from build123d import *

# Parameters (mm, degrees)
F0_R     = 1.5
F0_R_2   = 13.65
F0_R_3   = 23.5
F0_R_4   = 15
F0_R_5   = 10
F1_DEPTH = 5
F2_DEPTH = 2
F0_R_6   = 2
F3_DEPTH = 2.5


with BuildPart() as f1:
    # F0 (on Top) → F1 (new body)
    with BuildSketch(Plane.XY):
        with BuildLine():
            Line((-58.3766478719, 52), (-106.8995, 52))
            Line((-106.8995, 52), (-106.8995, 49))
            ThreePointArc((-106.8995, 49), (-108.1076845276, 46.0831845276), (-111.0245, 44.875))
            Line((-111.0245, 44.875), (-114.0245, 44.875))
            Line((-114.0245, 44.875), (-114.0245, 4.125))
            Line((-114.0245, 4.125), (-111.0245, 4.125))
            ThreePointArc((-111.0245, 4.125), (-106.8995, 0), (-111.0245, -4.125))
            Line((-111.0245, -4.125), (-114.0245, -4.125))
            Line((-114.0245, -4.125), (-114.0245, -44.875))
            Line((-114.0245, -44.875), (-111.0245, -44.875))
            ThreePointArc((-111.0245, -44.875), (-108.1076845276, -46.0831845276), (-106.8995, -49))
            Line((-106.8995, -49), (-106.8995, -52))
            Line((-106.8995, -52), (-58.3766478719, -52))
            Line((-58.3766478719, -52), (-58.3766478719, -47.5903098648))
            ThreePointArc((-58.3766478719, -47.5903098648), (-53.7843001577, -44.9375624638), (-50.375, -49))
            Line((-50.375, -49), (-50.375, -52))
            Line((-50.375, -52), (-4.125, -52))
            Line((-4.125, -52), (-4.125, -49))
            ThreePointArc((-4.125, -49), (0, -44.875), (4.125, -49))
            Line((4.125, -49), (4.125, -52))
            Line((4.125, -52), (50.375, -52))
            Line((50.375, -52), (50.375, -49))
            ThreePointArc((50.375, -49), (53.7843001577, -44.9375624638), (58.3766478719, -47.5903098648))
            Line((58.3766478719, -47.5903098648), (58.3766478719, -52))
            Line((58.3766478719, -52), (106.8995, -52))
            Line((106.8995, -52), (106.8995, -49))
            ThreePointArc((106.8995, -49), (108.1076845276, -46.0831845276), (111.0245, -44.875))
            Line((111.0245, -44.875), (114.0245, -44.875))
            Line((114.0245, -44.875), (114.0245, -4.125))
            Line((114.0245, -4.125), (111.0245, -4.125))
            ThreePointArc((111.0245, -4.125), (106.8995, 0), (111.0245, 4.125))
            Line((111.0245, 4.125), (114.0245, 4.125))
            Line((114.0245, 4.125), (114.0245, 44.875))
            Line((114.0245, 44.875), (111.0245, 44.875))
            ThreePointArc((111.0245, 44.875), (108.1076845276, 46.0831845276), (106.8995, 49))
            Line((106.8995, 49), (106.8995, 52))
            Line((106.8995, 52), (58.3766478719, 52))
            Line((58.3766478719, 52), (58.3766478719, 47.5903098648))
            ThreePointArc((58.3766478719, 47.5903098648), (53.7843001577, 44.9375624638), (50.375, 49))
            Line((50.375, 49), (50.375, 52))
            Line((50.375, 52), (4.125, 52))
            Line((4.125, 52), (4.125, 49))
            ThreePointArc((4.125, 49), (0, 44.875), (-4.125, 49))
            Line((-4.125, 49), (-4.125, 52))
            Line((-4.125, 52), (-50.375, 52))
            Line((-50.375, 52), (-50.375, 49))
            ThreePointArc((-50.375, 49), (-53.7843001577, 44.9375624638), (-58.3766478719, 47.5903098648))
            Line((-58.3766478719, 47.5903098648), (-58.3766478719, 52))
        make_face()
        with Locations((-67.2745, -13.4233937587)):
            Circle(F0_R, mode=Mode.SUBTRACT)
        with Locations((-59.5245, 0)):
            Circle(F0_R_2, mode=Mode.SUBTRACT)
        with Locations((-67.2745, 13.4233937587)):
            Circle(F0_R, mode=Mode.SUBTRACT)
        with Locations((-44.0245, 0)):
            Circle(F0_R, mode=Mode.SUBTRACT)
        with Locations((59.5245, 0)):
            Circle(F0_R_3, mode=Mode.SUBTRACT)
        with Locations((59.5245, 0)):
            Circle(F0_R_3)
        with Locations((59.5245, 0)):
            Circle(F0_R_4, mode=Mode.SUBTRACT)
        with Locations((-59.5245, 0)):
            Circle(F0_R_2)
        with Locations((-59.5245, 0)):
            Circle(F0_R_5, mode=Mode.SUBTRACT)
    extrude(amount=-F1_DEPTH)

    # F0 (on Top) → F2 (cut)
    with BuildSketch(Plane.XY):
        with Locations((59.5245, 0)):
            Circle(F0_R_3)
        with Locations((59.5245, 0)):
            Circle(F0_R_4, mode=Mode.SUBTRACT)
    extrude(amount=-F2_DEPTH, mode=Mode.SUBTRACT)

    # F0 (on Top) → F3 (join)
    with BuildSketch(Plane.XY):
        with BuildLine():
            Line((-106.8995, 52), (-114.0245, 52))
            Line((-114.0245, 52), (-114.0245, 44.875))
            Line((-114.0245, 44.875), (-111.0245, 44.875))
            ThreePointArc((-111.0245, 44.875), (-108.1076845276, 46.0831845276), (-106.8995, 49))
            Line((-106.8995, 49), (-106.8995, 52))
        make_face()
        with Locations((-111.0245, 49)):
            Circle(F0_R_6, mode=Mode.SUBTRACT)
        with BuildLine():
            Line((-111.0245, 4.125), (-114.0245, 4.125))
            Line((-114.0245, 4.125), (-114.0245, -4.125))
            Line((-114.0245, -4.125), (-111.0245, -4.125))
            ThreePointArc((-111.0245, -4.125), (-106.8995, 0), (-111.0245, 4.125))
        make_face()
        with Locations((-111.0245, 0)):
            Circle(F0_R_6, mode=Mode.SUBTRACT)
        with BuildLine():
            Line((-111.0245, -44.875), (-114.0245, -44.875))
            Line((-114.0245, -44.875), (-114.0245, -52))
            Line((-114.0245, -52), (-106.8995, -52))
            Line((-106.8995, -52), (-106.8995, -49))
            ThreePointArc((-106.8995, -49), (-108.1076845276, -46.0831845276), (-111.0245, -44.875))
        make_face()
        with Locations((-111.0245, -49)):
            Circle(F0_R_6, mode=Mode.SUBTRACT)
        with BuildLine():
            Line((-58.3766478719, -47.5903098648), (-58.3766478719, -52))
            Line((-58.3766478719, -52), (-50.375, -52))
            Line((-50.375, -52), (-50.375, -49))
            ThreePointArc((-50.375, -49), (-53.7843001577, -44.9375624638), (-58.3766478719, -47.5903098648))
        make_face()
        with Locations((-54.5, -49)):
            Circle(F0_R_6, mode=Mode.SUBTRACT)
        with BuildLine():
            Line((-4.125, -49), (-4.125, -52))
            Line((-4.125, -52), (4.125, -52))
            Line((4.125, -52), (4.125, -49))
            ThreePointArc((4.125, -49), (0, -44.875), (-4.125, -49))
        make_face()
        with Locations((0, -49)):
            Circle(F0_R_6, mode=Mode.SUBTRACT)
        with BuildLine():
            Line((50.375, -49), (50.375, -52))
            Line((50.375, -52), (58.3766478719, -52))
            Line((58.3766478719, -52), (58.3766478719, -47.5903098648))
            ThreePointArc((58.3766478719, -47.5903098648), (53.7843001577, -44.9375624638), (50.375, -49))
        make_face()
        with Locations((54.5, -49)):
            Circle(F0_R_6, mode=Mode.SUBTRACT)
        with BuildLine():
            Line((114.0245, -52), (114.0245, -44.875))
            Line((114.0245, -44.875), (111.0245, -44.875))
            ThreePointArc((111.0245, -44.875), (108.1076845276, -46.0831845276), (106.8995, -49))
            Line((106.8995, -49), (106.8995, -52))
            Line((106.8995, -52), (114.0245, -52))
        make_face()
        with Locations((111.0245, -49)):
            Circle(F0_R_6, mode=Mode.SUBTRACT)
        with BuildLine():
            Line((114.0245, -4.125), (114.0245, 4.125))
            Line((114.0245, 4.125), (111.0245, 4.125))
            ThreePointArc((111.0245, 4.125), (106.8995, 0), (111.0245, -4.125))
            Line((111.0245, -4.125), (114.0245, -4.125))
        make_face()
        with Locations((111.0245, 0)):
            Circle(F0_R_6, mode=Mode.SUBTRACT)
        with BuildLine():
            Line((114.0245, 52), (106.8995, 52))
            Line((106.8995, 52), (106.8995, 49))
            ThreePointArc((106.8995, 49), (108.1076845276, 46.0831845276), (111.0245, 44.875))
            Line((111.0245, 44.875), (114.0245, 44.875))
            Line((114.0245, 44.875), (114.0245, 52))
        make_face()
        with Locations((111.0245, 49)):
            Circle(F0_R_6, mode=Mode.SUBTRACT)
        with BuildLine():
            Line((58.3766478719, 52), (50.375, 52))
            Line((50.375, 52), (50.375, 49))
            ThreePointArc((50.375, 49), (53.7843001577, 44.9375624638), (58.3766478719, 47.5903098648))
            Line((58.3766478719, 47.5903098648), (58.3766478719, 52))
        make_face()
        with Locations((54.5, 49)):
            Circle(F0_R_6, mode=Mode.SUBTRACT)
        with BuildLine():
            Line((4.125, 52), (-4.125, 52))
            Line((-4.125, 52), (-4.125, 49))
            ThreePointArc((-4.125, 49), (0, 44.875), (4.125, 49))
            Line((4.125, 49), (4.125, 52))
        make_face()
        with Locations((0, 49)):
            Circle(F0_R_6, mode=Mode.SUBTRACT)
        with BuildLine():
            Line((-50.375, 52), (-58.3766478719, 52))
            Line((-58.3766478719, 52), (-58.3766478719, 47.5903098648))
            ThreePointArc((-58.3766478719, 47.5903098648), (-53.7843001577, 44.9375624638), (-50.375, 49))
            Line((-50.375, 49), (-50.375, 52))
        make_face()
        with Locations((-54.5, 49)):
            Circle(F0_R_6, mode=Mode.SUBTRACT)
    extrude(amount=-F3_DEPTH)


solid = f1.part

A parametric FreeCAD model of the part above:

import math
import FreeCAD as App
import Part
import Sketcher

V = App.Vector

doc = App.newDocument("Part")
body = doc.addObject("PartDesign::Body", "Body")

# Sketch on XY plane
sketch1 = body.newObject("Sketcher::SketchObject", "Sketch")
sketch1.AttachmentSupport = (doc.getObject("XY_Plane"), [""])
sketch1.MapMode = "FlatFace"
sketch1.addGeometry([
    Part.LineSegment(V(-58.4, 52, 0), V(-106.9, 52, 0)),  # 0
    Part.LineSegment(V(-106.9, 52, 0), V(-106.9, 49, 0)),  # 1
    Part.ArcOfCircle(Part.Circle(V(-111, 49, 0), V(0, 0, 1), 4.1), math.radians(-90), math.radians(0)),  # 2
    Part.LineSegment(V(-111, 44.9, 0), V(-114, 44.9, 0)),  # 3
    Part.LineSegment(V(-114, 44.9, 0), V(-114, 4.1, 0)),  # 4
    Part.LineSegment(V(-114, 4.1, 0), V(-111, 4.1, 0)),  # 5
    Part.ArcOfCircle(Part.Circle(V(-111, 0, 0), V(0, 0, 1), 4.1), math.radians(-90), math.radians(90)),  # 6
    Part.LineSegment(V(-111, -4.1, 0), V(-114, -4.1, 0)),  # 7
    Part.LineSegment(V(-114, -4.1, 0), V(-114, -44.9, 0)),  # 8
    Part.LineSegment(V(-114, -44.9, 0), V(-111, -44.9, 0)),  # 9
    Part.ArcOfCircle(Part.Circle(V(-111, -49, 0), V(0, 0, 1), 4.1), math.radians(0), math.radians(90)),  # 10
    Part.LineSegment(V(-106.9, -49, 0), V(-106.9, -52, 0)),  # 11
    Part.LineSegment(V(-106.9, -52, 0), V(-58.4, -52, 0)),  # 12
    Part.LineSegment(V(-58.4, -52, 0), V(-58.4, -47.6, 0)),  # 13
    Part.ArcOfCircle(Part.Circle(V(-54.5, -49, 0), V(0, 0, 1), 4.1), math.radians(0), math.radians(160)),  # 14
    Part.LineSegment(V(-50.4, -49, 0), V(-50.4, -52, 0)),  # 15
    Part.LineSegment(V(-50.4, -52, 0), V(-4.1, -52, 0)),  # 16
    Part.LineSegment(V(-4.1, -52, 0), V(-4.1, -49, 0)),  # 17
    Part.ArcOfCircle(Part.Circle(V(0, -49, 0), V(0, 0, 1), 4.1), math.radians(0), math.radians(180)),  # 18
    Part.LineSegment(V(4.1, -49, 0), V(4.1, -52, 0)),  # 19
    Part.LineSegment(V(4.1, -52, 0), V(50.4, -52, 0)),  # 20
    Part.LineSegment(V(50.4, -52, 0), V(50.4, -49, 0)),  # 21
    Part.ArcOfCircle(Part.Circle(V(54.5, -49, 0), V(0, 0, 1), 4.1), math.radians(20), math.radians(180)),  # 22
    Part.LineSegment(V(58.4, -47.6, 0), V(58.4, -52, 0)),  # 23
    Part.LineSegment(V(58.4, -52, 0), V(106.9, -52, 0)),  # 24
    Part.LineSegment(V(106.9, -52, 0), V(106.9, -49, 0)),  # 25
    Part.ArcOfCircle(Part.Circle(V(111, -49, 0), V(0, 0, 1), 4.1), math.radians(90), math.radians(180)),  # 26
    Part.LineSegment(V(111, -44.9, 0), V(114, -44.9, 0)),  # 27
    Part.LineSegment(V(114, -44.9, 0), V(114, -4.1, 0)),  # 28
    Part.LineSegment(V(114, -4.1, 0), V(111, -4.1, 0)),  # 29
    Part.ArcOfCircle(Part.Circle(V(111, 0, 0), V(0, 0, 1), 4.1), math.radians(90), math.radians(270)),  # 30
    Part.LineSegment(V(111, 4.1, 0), V(114, 4.1, 0)),  # 31
    Part.LineSegment(V(114, 4.1, 0), V(114, 44.9, 0)),  # 32
    Part.LineSegment(V(114, 44.9, 0), V(111, 44.9, 0)),  # 33
    Part.ArcOfCircle(Part.Circle(V(111, 49, 0), V(0, 0, 1), 4.1), math.radians(180), math.radians(270)),  # 34
    Part.LineSegment(V(106.9, 49, 0), V(106.9, 52, 0)),  # 35
    Part.LineSegment(V(106.9, 52, 0), V(58.4, 52, 0)),  # 36
    Part.LineSegment(V(58.4, 52, 0), V(58.4, 47.6, 0)),  # 37
    Part.ArcOfCircle(Part.Circle(V(54.5, 49, 0), V(0, 0, 1), 4.1), math.radians(180), math.radians(340)),  # 38
    Part.LineSegment(V(50.4, 49, 0), V(50.4, 52, 0)),  # 39
    Part.LineSegment(V(50.4, 52, 0), V(4.1, 52, 0)),  # 40
    Part.LineSegment(V(4.1, 52, 0), V(4.1, 49, 0)),  # 41
    Part.ArcOfCircle(Part.Circle(V(0, 49, 0), V(0, 0, 1), 4.1), math.radians(180), math.radians(360)),  # 42
    Part.LineSegment(V(-4.1, 49, 0), V(-4.1, 52, 0)),  # 43
    Part.LineSegment(V(-4.1, 52, 0), V(-50.4, 52, 0)),  # 44
    Part.LineSegment(V(-50.4, 52, 0), V(-50.4, 49, 0)),  # 45
    Part.ArcOfCircle(Part.Circle(V(-54.5, 49, 0), V(0, 0, 1), 4.1), math.radians(-160), math.radians(0)),  # 46
    Part.LineSegment(V(-58.4, 47.6, 0), V(-58.4, 52, 0)),  # 47
    Part.Circle(V(-67.3, -13.4, 0), V(0, 0, 1), 1.5),  # 48
    Part.Circle(V(-59.5, 0, 0), V(0, 0, 1), 10),  # 49
    Part.Circle(V(-44, 0, 0), V(0, 0, 1), 1.5),  # 50
    Part.Circle(V(-67.3, 13.4, 0), V(0, 0, 1), 1.5),  # 51
    Part.Circle(V(59.5, 0, 0), V(0, 0, 1), 15),  # 52
], False)
sketch1.addConstraint([
    Sketcher.Constraint("Coincident", 0, 2, 1, 1),
    Sketcher.Constraint("Tangent", 1, 2, 2, 2),
    Sketcher.Constraint("Tangent", 2, 1, 3, 1),
    Sketcher.Constraint("Coincident", 3, 2, 4, 1),
    Sketcher.Constraint("Coincident", 4, 2, 5, 1),
    Sketcher.Constraint("Tangent", 5, 2, 6, 2),
    Sketcher.Constraint("Tangent", 6, 1, 7, 1),
    Sketcher.Constraint("Coincident", 7, 2, 8, 1),
    Sketcher.Constraint("Coincident", 8, 2, 9, 1),
    Sketcher.Constraint("Tangent", 9, 2, 10, 2),
    Sketcher.Constraint("Tangent", 10, 1, 11, 1),
    Sketcher.Constraint("Coincident", 11, 2, 12, 1),
    Sketcher.Constraint("Coincident", 12, 2, 13, 1),
    Sketcher.Constraint("Coincident", 13, 2, 14, 2),
    Sketcher.Constraint("Tangent", 14, 1, 15, 1),
    Sketcher.Constraint("Coincident", 15, 2, 16, 1),
    Sketcher.Constraint("Coincident", 16, 2, 17, 1),
    Sketcher.Constraint("Tangent", 17, 2, 18, 2),
    Sketcher.Constraint("Tangent", 18, 1, 19, 1),
    Sketcher.Constraint("Coincident", 19, 2, 20, 1),
    Sketcher.Constraint("Coincident", 20, 2, 21, 1),
    Sketcher.Constraint("Tangent", 21, 2, 22, 2),
    Sketcher.Constraint("Coincident", 22, 1, 23, 1),
    Sketcher.Constraint("Coincident", 23, 2, 24, 1),
    Sketcher.Constraint("Coincident", 24, 2, 25, 1),
    Sketcher.Constraint("Tangent", 25, 2, 26, 2),
    Sketcher.Constraint("Tangent", 26, 1, 27, 1),
    Sketcher.Constraint("Coincident", 27, 2, 28, 1),
    Sketcher.Constraint("Coincident", 28, 2, 29, 1),
    Sketcher.Constraint("Tangent", 29, 2, 30, 2),
    Sketcher.Constraint("Tangent", 30, 1, 31, 1),
    Sketcher.Constraint("Coincident", 31, 2, 32, 1),
    Sketcher.Constraint("Coincident", 32, 2, 33, 1),
    Sketcher.Constraint("Tangent", 33, 2, 34, 2),
    Sketcher.Constraint("Tangent", 34, 1, 35, 1),
    Sketcher.Constraint("Coincident", 35, 2, 36, 1),
    Sketcher.Constraint("Coincident", 36, 2, 37, 1),
    Sketcher.Constraint("Coincident", 37, 2, 38, 2),
    Sketcher.Constraint("Tangent", 38, 1, 39, 1),
    Sketcher.Constraint("Coincident", 39, 2, 40, 1),
    Sketcher.Constraint("Coincident", 40, 2, 41, 1),
    Sketcher.Constraint("Tangent", 41, 2, 42, 2),
    Sketcher.Constraint("Tangent", 42, 1, 43, 1),
    Sketcher.Constraint("Coincident", 43, 2, 44, 1),
    Sketcher.Constraint("Coincident", 44, 2, 45, 1),
    Sketcher.Constraint("Tangent", 45, 2, 46, 2),
    Sketcher.Constraint("Coincident", 46, 1, 47, 1),
    Sketcher.Constraint("Coincident", 47, 2, 0, 1),
    Sketcher.Constraint("Horizontal", 0),
    Sketcher.Constraint("Vertical", 1),
    Sketcher.Constraint("Horizontal", 3),
    Sketcher.Constraint("Vertical", 4),
    Sketcher.Constraint("Horizontal", 5),
    Sketcher.Constraint("Horizontal", 7),
    Sketcher.Constraint("Vertical", 8),
    Sketcher.Constraint("Horizontal", 9),
    Sketcher.Constraint("Vertical", 11),
    Sketcher.Constraint("Horizontal", 12),
    Sketcher.Constraint("Vertical", 13),
    Sketcher.Constraint("Vertical", 15),
    Sketcher.Constraint("Horizontal", 16),
    Sketcher.Constraint("Vertical", 17),
    Sketcher.Constraint("Vertical", 19),
    Sketcher.Constraint("Horizontal", 20),
    Sketcher.Constraint("Vertical", 21),
    Sketcher.Constraint("Vertical", 23),
    Sketcher.Constraint("Horizontal", 24),
    Sketcher.Constraint("Vertical", 25),
    Sketcher.Constraint("Horizontal", 27),
    Sketcher.Constraint("Vertical", 28),
    Sketcher.Constraint("Horizontal", 29),
    Sketcher.Constraint("Horizontal", 31),
    Sketcher.Constraint("Vertical", 32),
    Sketcher.Constraint("Horizontal", 33),
    Sketcher.Constraint("Vertical", 35),
    Sketcher.Constraint("Horizontal", 36),
    Sketcher.Constraint("Vertical", 37),
    Sketcher.Constraint("Vertical", 39),
    Sketcher.Constraint("Horizontal", 40),
    Sketcher.Constraint("Vertical", 41),
    Sketcher.Constraint("Vertical", 43),
    Sketcher.Constraint("Horizontal", 44),
    Sketcher.Constraint("Vertical", 45),
    Sketcher.Constraint("Vertical", 47),
    Sketcher.Constraint("Equal", 2, 6),
    Sketcher.Constraint("Equal", 6, 10),
    Sketcher.Constraint("Equal", 10, 14),
    Sketcher.Constraint("Equal", 14, 18),
    Sketcher.Constraint("Equal", 18, 22),
    Sketcher.Constraint("Equal", 22, 26),
    Sketcher.Constraint("Equal", 26, 30),
    Sketcher.Constraint("Equal", 30, 34),
    Sketcher.Constraint("Equal", 34, 38),
    Sketcher.Constraint("Equal", 38, 42),
    Sketcher.Constraint("Equal", 42, 46),
    Sketcher.Constraint("Equal", 48, 50),
    Sketcher.Constraint("Equal", 50, 51),
    Sketcher.Constraint("Symmetric", 2, 3, 26, 3, -1, 1),
    Sketcher.Constraint("Symmetric", 6, 3, 30, 3, -1, 1),
    Sketcher.Constraint("Symmetric", 10, 3, 34, 3, -1, 1),
    Sketcher.Constraint("Symmetric", 14, 3, 38, 3, -1, 1),
    Sketcher.Constraint("Symmetric", 18, 3, 42, 3, -1, 1),
    Sketcher.Constraint("Symmetric", 22, 3, 46, 3, -1, 1),
    Sketcher.Constraint("Symmetric", 49, 3, 52, 3, -1, 1),
    Sketcher.Constraint("Symmetric", 12, 2, 36, 2, -1, 1),
    Sketcher.Constraint("Symmetric", 23, 2, 47, 2, -1, 1),
    Sketcher.Constraint("Symmetric", 14, 3, 22, 3, -2),
    Sketcher.Constraint("Symmetric", 10, 3, 26, 3, -2),
    Sketcher.Constraint("Symmetric", 16, 2, 19, 2, -2),
    Sketcher.Constraint("Symmetric", 12, 2, 23, 2, -2),
    Sketcher.Constraint("Symmetric", 7, 2, 28, 2, -2),
    Sketcher.Constraint("Symmetric", 48, 3, 51, 3, -1),
    Sketcher.Constraint("PointOnObject", 49, 3, -1),
    Sketcher.Constraint("PointOnObject", 50, 3, -1),
    Sketcher.Constraint("Horizontal", 10, 3, 14, 3),
    Sketcher.Constraint("Horizontal", 14, 3, 18, 3),
    Sketcher.Constraint("Horizontal", 12, 2, 15, 2),
    Sketcher.Constraint("Horizontal", 36, 2, 39, 2),
    Sketcher.Constraint("Horizontal", 40, 2, 43, 2),
    Sketcher.Constraint("Vertical", 2, 3, 6, 3),
    Sketcher.Constraint("Vertical", 4, 2, 7, 2),
    Sketcher.Constraint("Vertical", 28, 2, 31, 2),
    Sketcher.Constraint("Equal", 33, 1),
    Sketcher.Constraint("Diameter", 48, 3.0),
    Sketcher.Constraint("Diameter", 49, 20.0),
    Sketcher.Constraint("Diameter", 52, 30.0),
    Sketcher.Constraint("DistanceX", 3, 2, 3, 1, 3.0),
    Sketcher.Constraint("DistanceY", -1, 1, 2, 3, 49.0),
    Sketcher.Constraint("Radius", 2, 4.125),
    Sketcher.Constraint("DistanceX", 16, 1, 16, 2, 46.25),
    Sketcher.Constraint("DistanceY", 13, 1, 13, 2, 4.40969),
    Sketcher.Constraint("DistanceX", 2, 3, -1, 1, 111.0245),
    Sketcher.Constraint("DistanceX", 48, 3, -1, 1, 67.2745),
    Sketcher.Constraint("DistanceX", 49, 3, -1, 1, 59.5245),
    Sketcher.Constraint("DistanceX", 50, 3, -1, 1, 44.0245),
    Sketcher.Constraint("DistanceY", 48, 3, -1, 1, 13.423394),
])
pad1 = body.newObject("PartDesign::Pad", "Pad")
pad1.Profile = sketch1
pad1.Length = 5
pad1.Reversed = True

# Sketch on XY plane
sketch2 = body.newObject("Sketcher::SketchObject", "Sketch001")
sketch2.AttachmentSupport = (doc.getObject("XY_Plane"), [""])
sketch2.MapMode = "FlatFace"
sketch2.addGeometry([
    Part.Circle(V(60, 0, 0), V(0, 0, 1), 24),
    Part.Circle(V(60, 0, 0), V(0, 0, 1), 15),
], False)
sketch2.addConstraint([
    Sketcher.Constraint("Coincident", 1, 3, 0, 3),
    Sketcher.Constraint("PointOnObject", 0, 3, -1),
    Sketcher.Constraint("Diameter", 0, 47.0),
    Sketcher.Constraint("Diameter", 1, 30.0),
    Sketcher.Constraint("DistanceX", -1, 1, 0, 3, 59.5245),
])
pocket1 = body.newObject("PartDesign::Pocket", "Pocket")
pocket1.Profile = sketch2
pocket1.Length = 2

# Sketch on XY plane
sketch3 = body.newObject("Sketcher::SketchObject", "Sketch002")
sketch3.AttachmentSupport = (doc.getObject("XY_Plane"), [""])
sketch3.MapMode = "FlatFace"
sketch3.addGeometry([
    Part.LineSegment(V(-106.9, 52, 0), V(-114, 52, 0)),  # 0
    Part.LineSegment(V(-114, 52, 0), V(-114, 44.9, 0)),  # 1
    Part.LineSegment(V(-114, 44.9, 0), V(-111, 44.9, 0)),  # 2
    Part.ArcOfCircle(Part.Circle(V(-111, 49, 0), V(0, 0, 1), 4.1), math.radians(-90), math.radians(0)),  # 3
    Part.LineSegment(V(-106.9, 49, 0), V(-106.9, 52, 0)),  # 4
    Part.Circle(V(-111, 49, 0), V(0, 0, 1), 2),  # 5
    Part.LineSegment(V(-111, 4.1, 0), V(-114, 4.1, 0)),  # 6
    Part.LineSegment(V(-114, 4.1, 0), V(-114, -4.1, 0)),  # 7
    Part.LineSegment(V(-114, -4.1, 0), V(-111, -4.1, 0)),  # 8
    Part.ArcOfCircle(Part.Circle(V(-111, 0, 0), V(0, 0, 1), 4.1), math.radians(-90), math.radians(90)),  # 9
    Part.Circle(V(-111, 0, 0), V(0, 0, 1), 2),  # 10
    Part.LineSegment(V(-111, -44.9, 0), V(-114, -44.9, 0)),  # 11
    Part.LineSegment(V(-114, -44.9, 0), V(-114, -52, 0)),  # 12
    Part.LineSegment(V(-114, -52, 0), V(-106.9, -52, 0)),  # 13
    Part.LineSegment(V(-106.9, -52, 0), V(-106.9, -49, 0)),  # 14
    Part.ArcOfCircle(Part.Circle(V(-111, -49, 0), V(0, 0, 1), 4.1), math.radians(0), math.radians(90)),  # 15
    Part.Circle(V(-111, -49, 0), V(0, 0, 1), 2),  # 16
    Part.LineSegment(V(-58.4, -47.6, 0), V(-58.4, -52, 0)),  # 17
    Part.LineSegment(V(-58.4, -52, 0), V(-50.4, -52, 0)),  # 18
    Part.LineSegment(V(-50.4, -52, 0), V(-50.4, -49, 0)),  # 19
    Part.ArcOfCircle(Part.Circle(V(-54.5, -49, 0), V(0, 0, 1), 4.1), math.radians(0), math.radians(160)),  # 20
    Part.Circle(V(-54.5, -49, 0), V(0, 0, 1), 2),  # 21
    Part.LineSegment(V(-4.1, -49, 0), V(-4.1, -52, 0)),  # 22
    Part.LineSegment(V(-4.1, -52, 0), V(4.1, -52, 0)),  # 23
    Part.LineSegment(V(4.1, -52, 0), V(4.1, -49, 0)),  # 24
    Part.ArcOfCircle(Part.Circle(V(0, -49, 0), V(0, 0, 1), 4.1), math.radians(0), math.radians(180)),  # 25
    Part.Circle(V(0, -49, 0), V(0, 0, 1), 2),  # 26
    Part.LineSegment(V(50.4, -49, 0), V(50.4, -52, 0)),  # 27
    Part.LineSegment(V(50.4, -52, 0), V(58.4, -52, 0)),  # 28
    Part.LineSegment(V(58.4, -52, 0), V(58.4, -47.6, 0)),  # 29
    Part.ArcOfCircle(Part.Circle(V(54.5, -49, 0), V(0, 0, 1), 4.1), math.radians(20), math.radians(180)),  # 30
    Part.Circle(V(54.5, -49, 0), V(0, 0, 1), 2),  # 31
    Part.LineSegment(V(114, -52, 0), V(114, -44.9, 0)),  # 32
    Part.LineSegment(V(114, -44.9, 0), V(111, -44.9, 0)),  # 33
    Part.ArcOfCircle(Part.Circle(V(111, -49, 0), V(0, 0, 1), 4.1), math.radians(90), math.radians(180)),  # 34
    Part.LineSegment(V(106.9, -49, 0), V(106.9, -52, 0)),  # 35
    Part.LineSegment(V(106.9, -52, 0), V(114, -52, 0)),  # 36
    Part.Circle(V(111, -49, 0), V(0, 0, 1), 2),  # 37
    Part.LineSegment(V(114, -4.1, 0), V(114, 4.1, 0)),  # 38
    Part.LineSegment(V(114, 4.1, 0), V(111, 4.1, 0)),  # 39
    Part.ArcOfCircle(Part.Circle(V(111, 0, 0), V(0, 0, 1), 4.1), math.radians(90), math.radians(270)),  # 40
    Part.LineSegment(V(111, -4.1, 0), V(114, -4.1, 0)),  # 41
    Part.Circle(V(111, 0, 0), V(0, 0, 1), 2),  # 42
    Part.LineSegment(V(114, 52, 0), V(106.9, 52, 0)),  # 43
    Part.LineSegment(V(106.9, 52, 0), V(106.9, 49, 0)),  # 44
    Part.ArcOfCircle(Part.Circle(V(111, 49, 0), V(0, 0, 1), 4.1), math.radians(180), math.radians(270)),  # 45
    Part.LineSegment(V(111, 44.9, 0), V(114, 44.9, 0)),  # 46
    Part.LineSegment(V(114, 44.9, 0), V(114, 52, 0)),  # 47
    Part.Circle(V(111, 49, 0), V(0, 0, 1), 2),  # 48
    Part.LineSegment(V(58.4, 52, 0), V(50.4, 52, 0)),  # 49
    Part.LineSegment(V(50.4, 52, 0), V(50.4, 49, 0)),  # 50
    Part.ArcOfCircle(Part.Circle(V(54.5, 49, 0), V(0, 0, 1), 4.1), math.radians(180), math.radians(340)),  # 51
    Part.LineSegment(V(58.4, 47.6, 0), V(58.4, 52, 0)),  # 52
    Part.Circle(V(54.5, 49, 0), V(0, 0, 1), 2),  # 53
    Part.LineSegment(V(4.1, 52, 0), V(-4.1, 52, 0)),  # 54
    Part.LineSegment(V(-4.1, 52, 0), V(-4.1, 49, 0)),  # 55
    Part.ArcOfCircle(Part.Circle(V(0, 49, 0), V(0, 0, 1), 4.1), math.radians(180), math.radians(360)),  # 56
    Part.LineSegment(V(4.1, 49, 0), V(4.1, 52, 0)),  # 57
    Part.Circle(V(0, 49, 0), V(0, 0, 1), 2),  # 58
    Part.LineSegment(V(-50.4, 52, 0), V(-58.4, 52, 0)),  # 59
    Part.LineSegment(V(-58.4, 52, 0), V(-58.4, 47.6, 0)),  # 60
    Part.ArcOfCircle(Part.Circle(V(-54.5, 49, 0), V(0, 0, 1), 4.1), math.radians(-160), math.radians(0)),  # 61
    Part.LineSegment(V(-50.4, 49, 0), V(-50.4, 52, 0)),  # 62
    Part.Circle(V(-54.5, 49, 0), V(0, 0, 1), 2),  # 63
], False)
sketch3.addConstraint([
    Sketcher.Constraint("Coincident", 0, 2, 1, 1),
    Sketcher.Constraint("Coincident", 1, 2, 2, 1),
    Sketcher.Constraint("Tangent", 2, 2, 3, 1),
    Sketcher.Constraint("Tangent", 3, 2, 4, 1),
    Sketcher.Constraint("Coincident", 4, 2, 0, 1),
    Sketcher.Constraint("Coincident", 6, 2, 7, 1),
    Sketcher.Constraint("Coincident", 7, 2, 8, 1),
    Sketcher.Constraint("Tangent", 8, 2, 9, 1),
    Sketcher.Constraint("Tangent", 9, 2, 6, 1),
    Sketcher.Constraint("Coincident", 11, 2, 12, 1),
    Sketcher.Constraint("Coincident", 12, 2, 13, 1),
    Sketcher.Constraint("Coincident", 13, 2, 14, 1),
    Sketcher.Constraint("Tangent", 14, 2, 15, 1),
    Sketcher.Constraint("Tangent", 15, 2, 11, 1),
    Sketcher.Constraint("Coincident", 17, 2, 18, 1),
    Sketcher.Constraint("Coincident", 18, 2, 19, 1),
    Sketcher.Constraint("Tangent", 19, 2, 20, 1),
    Sketcher.Constraint("Coincident", 20, 2, 17, 1),
    Sketcher.Constraint("Coincident", 22, 2, 23, 1),
    Sketcher.Constraint("Coincident", 23, 2, 24, 1),
    Sketcher.Constraint("Tangent", 24, 2, 25, 1),
    Sketcher.Constraint("Tangent", 25, 2, 22, 1),
    Sketcher.Constraint("Coincident", 27, 2, 28, 1),
    Sketcher.Constraint("Coincident", 28, 2, 29, 1),
    Sketcher.Constraint("Coincident", 29, 2, 30, 1),
    Sketcher.Constraint("Tangent", 30, 2, 27, 1),
    Sketcher.Constraint("Coincident", 32, 2, 33, 1),
    Sketcher.Constraint("Tangent", 33, 2, 34, 1),
    Sketcher.Constraint("Tangent", 34, 2, 35, 1),
    Sketcher.Constraint("Coincident", 35, 2, 36, 1),
    Sketcher.Constraint("Coincident", 36, 2, 32, 1),
    Sketcher.Constraint("Coincident", 38, 2, 39, 1),
    Sketcher.Constraint("Tangent", 39, 2, 40, 1),
    Sketcher.Constraint("Tangent", 40, 2, 41, 1),
    Sketcher.Constraint("Coincident", 41, 2, 38, 1),
    Sketcher.Constraint("Coincident", 43, 2, 44, 1),
    Sketcher.Constraint("Tangent", 44, 2, 45, 1),
    Sketcher.Constraint("Tangent", 45, 2, 46, 1),
    Sketcher.Constraint("Coincident", 46, 2, 47, 1),
    Sketcher.Constraint("Coincident", 47, 2, 43, 1),
    Sketcher.Constraint("Coincident", 49, 2, 50, 1),
    Sketcher.Constraint("Tangent", 50, 2, 51, 1),
    Sketcher.Constraint("Coincident", 51, 2, 52, 1),
    Sketcher.Constraint("Coincident", 52, 2, 49, 1),
    Sketcher.Constraint("Coincident", 54, 2, 55, 1),
    Sketcher.Constraint("Tangent", 55, 2, 56, 1),
    Sketcher.Constraint("Tangent", 56, 2, 57, 1),
    Sketcher.Constraint("Coincident", 57, 2, 54, 1),
    Sketcher.Constraint("Coincident", 59, 2, 60, 1),
    Sketcher.Constraint("Coincident", 60, 2, 61, 1),
    Sketcher.Constraint("Tangent", 61, 2, 62, 1),
    Sketcher.Constraint("Coincident", 62, 2, 59, 1),
    Sketcher.Constraint("Horizontal", 0),
    Sketcher.Constraint("Vertical", 1),
    Sketcher.Constraint("Horizontal", 2),
    Sketcher.Constraint("Vertical", 4),
    Sketcher.Constraint("Horizontal", 6),
    Sketcher.Constraint("Vertical", 7),
    Sketcher.Constraint("Horizontal", 8),
    Sketcher.Constraint("Horizontal", 11),
    Sketcher.Constraint("Vertical", 12),
    Sketcher.Constraint("Horizontal", 13),
    Sketcher.Constraint("Vertical", 14),
    Sketcher.Constraint("Vertical", 17),
    Sketcher.Constraint("Horizontal", 18),
    Sketcher.Constraint("Vertical", 19),
    Sketcher.Constraint("Vertical", 22),
    Sketcher.Constraint("Horizontal", 23),
    Sketcher.Constraint("Vertical", 24),
    Sketcher.Constraint("Vertical", 27),
    Sketcher.Constraint("Horizontal", 28),
    Sketcher.Constraint("Vertical", 29),
    Sketcher.Constraint("Vertical", 32),
    Sketcher.Constraint("Horizontal", 33),
    Sketcher.Constraint("Vertical", 35),
    Sketcher.Constraint("Horizontal", 36),
    Sketcher.Constraint("Vertical", 38),
    Sketcher.Constraint("Horizontal", 39),
    Sketcher.Constraint("Horizontal", 41),
    Sketcher.Constraint("Horizontal", 43),
    Sketcher.Constraint("Vertical", 44),
    Sketcher.Constraint("Horizontal", 46),
    Sketcher.Constraint("Vertical", 47),
    Sketcher.Constraint("Horizontal", 49),
    Sketcher.Constraint("Vertical", 50),
    Sketcher.Constraint("Vertical", 52),
    Sketcher.Constraint("Horizontal", 54),
    Sketcher.Constraint("Vertical", 55),
    Sketcher.Constraint("Vertical", 57),
    Sketcher.Constraint("Horizontal", 59),
    Sketcher.Constraint("Vertical", 60),
    Sketcher.Constraint("Vertical", 62),
    Sketcher.Constraint("Coincident", 5, 3, 3, 3),
    Sketcher.Constraint("Coincident", 10, 3, 9, 3),
    Sketcher.Constraint("Coincident", 16, 3, 15, 3),
    Sketcher.Constraint("Coincident", 21, 3, 20, 3),
    Sketcher.Constraint("Coincident", 26, 3, 25, 3),
    Sketcher.Constraint("Coincident", 31, 3, 30, 3),
    Sketcher.Constraint("Coincident", 37, 3, 34, 3),
    Sketcher.Constraint("Coincident", 42, 3, 40, 3),
    Sketcher.Constraint("Coincident", 48, 3, 45, 3),
    Sketcher.Constraint("Coincident", 53, 3, 51, 3),
    Sketcher.Constraint("Coincident", 58, 3, 56, 3),
    Sketcher.Constraint("Coincident", 63, 3, 61, 3),
    Sketcher.Constraint("Equal", 3, 9),
    Sketcher.Constraint("Equal", 5, 10),
    Sketcher.Constraint("Equal", 9, 15),
    Sketcher.Constraint("Equal", 10, 16),
    Sketcher.Constraint("Equal", 15, 20),
    Sketcher.Constraint("Equal", 16, 21),
    Sketcher.Constraint("Equal", 20, 25),
    Sketcher.Constraint("Equal", 21, 26),
    Sketcher.Constraint("Equal", 25, 30),
    Sketcher.Constraint("Equal", 26, 31),
    Sketcher.Constraint("Equal", 30, 34),
    Sketcher.Constraint("Equal", 31, 37),
    Sketcher.Constraint("Equal", 34, 40),
    Sketcher.Constraint("Equal", 37, 42),
    Sketcher.Constraint("Equal", 40, 45),
    Sketcher.Constraint("Equal", 42, 48),
    Sketcher.Constraint("Equal", 45, 51),
    Sketcher.Constraint("Equal", 48, 53),
    Sketcher.Constraint("Equal", 51, 56),
    Sketcher.Constraint("Equal", 53, 58),
    Sketcher.Constraint("Equal", 56, 61),
    Sketcher.Constraint("Equal", 58, 63),
    Sketcher.Constraint("Symmetric", 3, 3, 34, 3, -1, 1),
    Sketcher.Constraint("Symmetric", 9, 3, 40, 3, -1, 1),
    Sketcher.Constraint("Symmetric", 15, 3, 45, 3, -1, 1),
    Sketcher.Constraint("Symmetric", 20, 3, 51, 3, -1, 1),
    Sketcher.Constraint("Symmetric", 25, 3, 56, 3, -1, 1),
    Sketcher.Constraint("Symmetric", 30, 3, 61, 3, -1, 1),
    Sketcher.Constraint("Symmetric", 0, 2, 36, 2, -1, 1),
    Sketcher.Constraint("Symmetric", 12, 2, 47, 2, -1, 1),
    Sketcher.Constraint("Symmetric", 17, 2, 52, 2, -1, 1),
    Sketcher.Constraint("Symmetric", 28, 2, 59, 2, -1, 1),
    Sketcher.Constraint("Symmetric", 20, 3, 30, 3, -2),
    Sketcher.Constraint("Symmetric", 15, 3, 34, 3, -2),
    Sketcher.Constraint("Symmetric", 17, 2, 28, 2, -2),
    Sketcher.Constraint("Symmetric", 12, 2, 36, 2, -2),
    Sketcher.Constraint("Symmetric", 6, 2, 38, 2, -2),
    Sketcher.Constraint("Symmetric", 22, 2, 54, 2, -1),
    Sketcher.Constraint("Horizontal", 16, 3, 20, 3),
    Sketcher.Constraint("Horizontal", 21, 3, 25, 3),
    Sketcher.Constraint("Horizontal", 13, 2, 17, 2),
    Sketcher.Constraint("Horizontal", 18, 2, 22, 2),
    Sketcher.Constraint("Vertical", 5, 3, 9, 3),
    Sketcher.Constraint("Vertical", 1, 2, 6, 2),
    Sketcher.Constraint("Equal", 43, 1),
    Sketcher.Constraint("Diameter", 5, 4.0),
    Sketcher.Constraint("DistanceX", 2, 1, 2, 2, 3.0),
    Sketcher.Constraint("DistanceY", -1, 1, 3, 3, 49.0),
    Sketcher.Constraint("Radius", 3, 4.125),
    Sketcher.Constraint("DistanceX", 20, 3, -1, 1, 54.5),
    Sketcher.Constraint("DistanceY", 17, 2, 17, 1, 4.40969),
    Sketcher.Constraint("DistanceX", 3, 3, -1, 1, 111.0245),
])
pad2 = body.newObject("PartDesign::Pad", "Pad001")
pad2.Profile = sketch3
pad2.Length = 2.5
pad2.Reversed = True

doc.recompute()
